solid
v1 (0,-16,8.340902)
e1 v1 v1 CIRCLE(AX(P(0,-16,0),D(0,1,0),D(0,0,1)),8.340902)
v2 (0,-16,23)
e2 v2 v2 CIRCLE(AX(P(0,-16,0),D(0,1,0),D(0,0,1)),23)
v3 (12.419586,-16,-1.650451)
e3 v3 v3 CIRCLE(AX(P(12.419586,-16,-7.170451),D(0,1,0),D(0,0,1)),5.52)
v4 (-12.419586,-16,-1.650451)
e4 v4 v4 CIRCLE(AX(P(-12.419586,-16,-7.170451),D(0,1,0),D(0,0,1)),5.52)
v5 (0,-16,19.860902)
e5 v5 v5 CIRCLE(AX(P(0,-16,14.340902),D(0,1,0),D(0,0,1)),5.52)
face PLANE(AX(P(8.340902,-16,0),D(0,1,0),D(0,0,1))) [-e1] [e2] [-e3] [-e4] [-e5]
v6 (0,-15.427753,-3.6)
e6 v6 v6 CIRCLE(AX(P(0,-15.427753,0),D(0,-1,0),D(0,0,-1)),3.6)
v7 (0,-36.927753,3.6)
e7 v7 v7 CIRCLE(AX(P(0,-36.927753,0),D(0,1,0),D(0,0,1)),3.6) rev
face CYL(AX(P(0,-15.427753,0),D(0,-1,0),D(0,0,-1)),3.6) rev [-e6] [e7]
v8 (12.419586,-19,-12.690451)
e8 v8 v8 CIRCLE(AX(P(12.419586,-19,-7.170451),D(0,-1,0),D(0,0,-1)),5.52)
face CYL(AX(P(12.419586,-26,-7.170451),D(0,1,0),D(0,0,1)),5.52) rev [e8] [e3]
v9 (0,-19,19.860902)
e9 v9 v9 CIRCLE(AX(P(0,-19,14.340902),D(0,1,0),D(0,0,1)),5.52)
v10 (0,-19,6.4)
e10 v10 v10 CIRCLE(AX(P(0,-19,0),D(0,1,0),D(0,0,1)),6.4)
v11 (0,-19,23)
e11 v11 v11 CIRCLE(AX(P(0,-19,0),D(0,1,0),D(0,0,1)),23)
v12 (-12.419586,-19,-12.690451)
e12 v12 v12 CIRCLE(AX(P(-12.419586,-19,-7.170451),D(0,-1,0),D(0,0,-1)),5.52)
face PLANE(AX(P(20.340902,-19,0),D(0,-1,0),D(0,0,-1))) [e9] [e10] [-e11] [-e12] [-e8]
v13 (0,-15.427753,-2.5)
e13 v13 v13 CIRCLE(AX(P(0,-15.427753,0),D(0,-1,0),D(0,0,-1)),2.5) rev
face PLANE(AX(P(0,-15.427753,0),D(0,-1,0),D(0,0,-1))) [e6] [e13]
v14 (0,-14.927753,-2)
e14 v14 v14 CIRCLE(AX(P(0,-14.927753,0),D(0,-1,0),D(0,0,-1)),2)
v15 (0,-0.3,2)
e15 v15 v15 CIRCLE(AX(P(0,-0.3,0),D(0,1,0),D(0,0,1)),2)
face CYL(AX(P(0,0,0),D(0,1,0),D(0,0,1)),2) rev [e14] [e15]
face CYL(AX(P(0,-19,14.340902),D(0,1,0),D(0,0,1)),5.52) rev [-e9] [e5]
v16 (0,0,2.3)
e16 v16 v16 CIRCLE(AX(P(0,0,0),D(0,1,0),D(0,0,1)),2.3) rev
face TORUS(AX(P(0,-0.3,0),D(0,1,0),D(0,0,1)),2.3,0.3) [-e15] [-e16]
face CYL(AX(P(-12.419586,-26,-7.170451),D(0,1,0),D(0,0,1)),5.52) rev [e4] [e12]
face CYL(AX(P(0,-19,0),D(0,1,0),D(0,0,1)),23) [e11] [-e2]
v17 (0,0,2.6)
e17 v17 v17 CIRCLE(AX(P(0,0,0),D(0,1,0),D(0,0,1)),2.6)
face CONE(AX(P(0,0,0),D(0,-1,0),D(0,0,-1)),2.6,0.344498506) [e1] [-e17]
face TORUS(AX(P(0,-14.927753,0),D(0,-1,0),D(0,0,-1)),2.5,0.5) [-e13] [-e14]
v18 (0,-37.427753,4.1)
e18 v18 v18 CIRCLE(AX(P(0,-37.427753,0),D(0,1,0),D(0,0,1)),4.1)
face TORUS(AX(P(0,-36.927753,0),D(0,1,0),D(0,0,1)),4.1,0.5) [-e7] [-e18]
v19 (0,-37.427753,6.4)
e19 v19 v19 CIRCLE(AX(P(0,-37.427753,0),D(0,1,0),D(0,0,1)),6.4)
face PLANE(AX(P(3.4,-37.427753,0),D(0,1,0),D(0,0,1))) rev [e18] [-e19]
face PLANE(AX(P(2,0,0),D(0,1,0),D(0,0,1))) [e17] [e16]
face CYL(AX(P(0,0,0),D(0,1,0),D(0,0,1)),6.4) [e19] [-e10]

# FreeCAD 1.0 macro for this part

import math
import FreeCAD as App
import Part
import Sketcher

V = App.Vector
Q = App.Units.Quantity


def edges_at(feature, points):
    """Names of the edges that pass closest to the given points."""
    edges = feature.Shape.Edges
    near = lambda p: min(range(len(edges)), key=lambda i: edges[i].distToShape(Part.Vertex(*p))[0])
    return sorted({f"Edge{near(p) + 1}" for p in points})


def add_polygon(sketch, points):
    """Adds a closed chain of lines whose ends are joined by coincident constraints."""
    first, n = sketch.GeometryCount, len(points)
    for a, b in zip(points, points[1:] + points[:1]):
        sketch.addGeometry(Part.LineSegment(App.Vector(*a, 0), App.Vector(*b, 0)), False)
    for i in range(n):
        sketch.addConstraint(Sketcher.Constraint("Coincident", first + i, 2, first + (i + 1) % n, 1))

doc = App.newDocument("Part")
body = doc.addObject("PartDesign::Body", "Body")

# Sketch on XY plane
sketch1 = body.newObject("Sketcher::SketchObject", "Sketch")
sketch1.AttachmentSupport = (doc.getObject("XY_Plane"), [""])
sketch1.MapMode = "FlatFace"
add_polygon(sketch1, [(2.6, 0), (2, 0), (2, -16), (3.4, -16), (3.4, -37.4), (6.4, -37.4), (6.4, -19), (20.3, -19), (20.3, -16), (8.3, -16)])  # lines 0-9
sketch1.addConstraint(Sketcher.Constraint("Horizontal", 0))
sketch1.addConstraint(Sketcher.Constraint("Vertical", 1))
sketch1.addConstraint(Sketcher.Constraint("Horizontal", 2))
sketch1.addConstraint(Sketcher.Constraint("Vertical", 3))
sketch1.addConstraint(Sketcher.Constraint("Horizontal", 4))
sketch1.addConstraint(Sketcher.Constraint("Vertical", 5))
sketch1.addConstraint(Sketcher.Constraint("Horizontal", 6))
sketch1.addConstraint(Sketcher.Constraint("Vertical", 7))
sketch1.addConstraint(Sketcher.Constraint("Horizontal", 8))
sketch1.addConstraint(Sketcher.Constraint("PointOnObject", 0, 2, -1))
sketch1.addConstraint(Sketcher.Constraint("Horizontal", 2, 2, 7, 2))
sketch1.addConstraint(Sketcher.Constraint("Equal", 4, 7))
sketch1.addConstraint(Sketcher.Constraint("DistanceX", 4, 1, 4, 2, 3.0))
sketch1.addConstraint(Sketcher.Constraint("DistanceX", 8, 2, 8, 1, 12.0))
sketch1.addConstraint(Sketcher.Constraint("DistanceY", 1, 2, 1, 1, 16.0))
sketch1.addConstraint(Sketcher.Constraint("DistanceX", 0, 2, 0, 1, 0.6))
sketch1.addConstraint(Sketcher.Constraint("DistanceX", 2, 1, 2, 2, 1.4))
sketch1.addConstraint(Sketcher.Constraint("DistanceX", -1, 1, 0, 2, 2.0))
sketch1.addConstraint(Sketcher.Constraint("DistanceX", 6, 1, 6, 2, 13.940902))
sketch1.addConstraint(Sketcher.Constraint("DistanceY", 3, 2, 3, 1, 21.427753))
revolution = body.newObject("PartDesign::Revolution", "Revolution")
revolution.Profile = sketch1
revolution.ReferenceAxis = (sketch1, ["V_Axis"])
revolution.Angle = 360
doc.recompute()

fillet = body.newObject("PartDesign::Fillet", "Fillet")
fillet.Base = (revolution, edges_at(revolution, [(-2, 0, 0)]))
fillet.Radius = 0.3

# Sketch on XZ plane
sketch2 = body.newObject("Sketcher::SketchObject", "Sketch001")
sketch2.AttachmentSupport = (doc.getObject("XZ_Plane"), [""])
sketch2.MapMode = "FlatFace"
sketch2.AttachmentOffset = App.Placement(V(0, 0, 37.427753), App.Rotation())
sketch2.addGeometry(Part.Circle(V(0, 0, 0), V(0, 0, 1), 3.6), False)
sketch2.addConstraint(Sketcher.Constraint("Coincident", 0, 3, -1, 1))
sketch2.addConstraint(Sketcher.Constraint("Diameter", 0, 7.2))
pocket1 = body.newObject("PartDesign::Pocket", "Pocket")
pocket1.Profile = sketch2
pocket1.Type = "TwoLengths"
pocket1.Length = 1
pocket1.Length2 = 22
pocket1.Reversed = True
doc.recompute()

fillet2 = body.newObject("PartDesign::Fillet", "Fillet001")
fillet2.Base = (pocket1, edges_at(pocket1, [(-2, -15.428, 0)]))
fillet2.Radius = 0.5
doc.recompute()

fillet3 = body.newObject("PartDesign::Fillet", "Fillet002")
fillet3.Base = (fillet2, edges_at(fillet2, [(-3.6, -37.428, 0)]))
fillet3.Radius = 0.5

# Sketch on XZ plane
sketch3 = body.newObject("Sketcher::SketchObject", "Sketch002")
sketch3.AttachmentSupport = (doc.getObject("XZ_Plane"), [""])
sketch3.MapMode = "FlatFace"
sketch3.AttachmentOffset = App.Placement(V(0, 0, 16), App.Rotation())
add_polygon(sketch3, [(-3.2, 14), (-3.2, 16), (3.2, 16), (3.2, 14)])  # lines 0-3
sketch3.addConstraint(Sketcher.Constraint("Vertical", 0))
sketch3.addConstraint(Sketcher.Constraint("Horizontal", 1))
sketch3.addConstraint(Sketcher.Constraint("Vertical", 2))
sketch3.addConstraint(Sketcher.Constraint("Horizontal", 3))
sketch3.addConstraint(Sketcher.Constraint("DistanceY", 0, 1, 0, 2, 2.0))
sketch3.addConstraint(Sketcher.Constraint("DistanceX", 1, 1, 1, 2, 6.5))
sketch3.addConstraint(Sketcher.Constraint("DistanceY", -1, 1, 0, 2, 16.0))
sketch3.addConstraint(Sketcher.Constraint("DistanceX", 0, 2, -1, 1, 3.25))

# Sketch on XZ plane
sketch4 = body.newObject("Sketcher::SketchObject", "Sketch003")
sketch4.AttachmentSupport = (doc.getObject("XZ_Plane"), [""])
sketch4.MapMode = "FlatFace"
sketch4.AttachmentOffset = App.Placement(V(0, 0, 19), App.Rotation())
add_polygon(sketch4, [(-4.2, 16), (-4.2, 14), (4.2, 14), (4.2, 16)])  # lines 0-3
sketch4.addConstraint(Sketcher.Constraint("Vertical", 0))
sketch4.addConstraint(Sketcher.Constraint("Horizontal", 1))
sketch4.addConstraint(Sketcher.Constraint("Vertical", 2))
sketch4.addConstraint(Sketcher.Constraint("Horizontal", 3))
sketch4.addConstraint(Sketcher.Constraint("DistanceY", 0, 2, 0, 1, 2.0))
sketch4.addConstraint(Sketcher.Constraint("DistanceX", 1, 1, 1, 2, 8.5))
sketch4.addConstraint(Sketcher.Constraint("DistanceY", -1, 1, 0, 2, 14.0))
sketch4.addConstraint(Sketcher.Constraint("DistanceX", 0, 2, -1, 1, 4.25))

subtractiveloft = body.newObject("PartDesign::SubtractiveLoft", "SubtractiveLoft")
subtractiveloft.Profile = sketch3
subtractiveloft.Sections = [sketch4]

# Sketch on XZ plane
sketch5 = body.newObject("Sketcher::SketchObject", "Sketch004")
sketch5.AttachmentSupport = (doc.getObject("XZ_Plane"), [""])
sketch5.MapMode = "FlatFace"
sketch5.AttachmentOffset = App.Placement(V(0, 0, 19), App.Rotation())
add_polygon(sketch5, [(-4.2, 16.5), (-4.2, 13.5), (4.2, 13.5), (4.2, 16.5)])  # lines 0-3
sketch5.addConstraint(Sketcher.Constraint("Vertical", 0))
sketch5.addConstraint(Sketcher.Constraint("Horizontal", 1))
sketch5.addConstraint(Sketcher.Constraint("Vertical", 2))
sketch5.addConstraint(Sketcher.Constraint("Horizontal", 3))
sketch5.addConstraint(Sketcher.Constraint("DistanceY", 0, 2, 0, 1, 3.0))
sketch5.addConstraint(Sketcher.Constraint("DistanceX", 1, 1, 1, 2, 8.5))
sketch5.addConstraint(Sketcher.Constraint("DistanceY", -1, 1, 0, 2, 13.5))
sketch5.addConstraint(Sketcher.Constraint("DistanceX", 0, 2, -1, 1, 4.25))

# Sketch on XZ plane
sketch6 = body.newObject("Sketcher::SketchObject", "Sketch005")
sketch6.AttachmentSupport = (doc.getObject("XZ_Plane"), [""])
sketch6.MapMode = "FlatFace"
sketch6.AttachmentOffset = App.Placement(V(0, 0, 16), App.Rotation())
add_polygon(sketch6, [(-3.2, 13.5), (-3.2, 16.5), (3.2, 16.5), (3.2, 13.5)])  # lines 0-3
sketch6.addConstraint(Sketcher.Constraint("Vertical", 0))
sketch6.addConstraint(Sketcher.Constraint("Horizontal", 1))
sketch6.addConstraint(Sketcher.Constraint("Vertical", 2))
sketch6.addConstraint(Sketcher.Constraint("Horizontal", 3))
sketch6.addConstraint(Sketcher.Constraint("DistanceY", 0, 1, 0, 2, 3.0))
sketch6.addConstraint(Sketcher.Constraint("DistanceX", 1, 1, 1, 2, 6.5))
sketch6.addConstraint(Sketcher.Constraint("DistanceY", -1, 1, 0, 2, 16.5))
sketch6.addConstraint(Sketcher.Constraint("DistanceX", 0, 2, -1, 1, 3.25))

subtractiveloft2 = body.newObject("PartDesign::SubtractiveLoft", "SubtractiveLoft001")
subtractiveloft2.Profile = sketch5
subtractiveloft2.Sections = [sketch6]

# Sketch on XZ plane
sketch7 = body.newObject("Sketcher::SketchObject", "Sketch006")
sketch7.AttachmentSupport = (doc.getObject("XZ_Plane"), [""])
sketch7.MapMode = "FlatFace"
sketch7.AttachmentOffset = App.Placement(V(0, 0, 16), App.Rotation())
sketch7.addGeometry(Part.Circle(V(0, -14.3, 0), V(0, 0, 1), 5.5), False)
sketch7.addGeometry(Part.Circle(V(12.4, -7.2, 0), V(0, 0, 1), 5.5), False)
sketch7.addGeometry(Part.ArcOfCircle(Part.Circle(V(-12.4, -7.2, 0), V(0, 0, 1), 5.5), math.radians(30), math.radians(210)), False)
sketch7.addGeometry(Part.ArcOfCircle(Part.Circle(V(-12.4, -7.2, 0), V(0, 0, 1), 5.5), math.radians(0), math.radians(30)), False)
sketch7.addGeometry(Part.ArcOfCircle(Part.Circle(V(-12.4, -7.2, 0), V(0, 0, 1), 5.5), math.radians(-150), math.radians(0)), False)
sketch7.addConstraint(Sketcher.Constraint("Tangent", 2, 1, 3, 2))
sketch7.addConstraint(Sketcher.Constraint("Tangent", 3, 1, 4, 2))
sketch7.addConstraint(Sketcher.Constraint("Tangent", 4, 1, 2, 2))
sketch7.addConstraint(Sketcher.Constraint("Equal", 0, 1))
sketch7.addConstraint(Sketcher.Constraint("Equal", 1, 2))
sketch7.addConstraint(Sketcher.Constraint("Symmetric", 1, 3, 2, 3, -2))
sketch7.addConstraint(Sketcher.Constraint("PointOnObject", 0, 3, -2))
sketch7.addConstraint(Sketcher.Constraint("Horizontal", 4, 3, 3, 1))
sketch7.addConstraint(Sketcher.Constraint("Diameter", 0, 11.04))
sketch7.addConstraint(Sketcher.Constraint("DistanceY", 2, 3, 2, 1, 2.76))
sketch7.addConstraint(Sketcher.Constraint("DistanceY", 4, 1, 3, 3, 2.76))
sketch7.addConstraint(Sketcher.Constraint("DistanceY", 1, 3, -1, 1, 7.170451))
sketch7.addConstraint(Sketcher.Constraint("DistanceY", 0, 3, 1, 3, 7.170451))
sketch7.addConstraint(Sketcher.Constraint("DistanceX", 2, 3, 1, 3, 24.839171))
pocket2 = body.newObject("PartDesign::Pocket", "Pocket001")
pocket2.Profile = sketch7
pocket2.Length = 10
pocket2.Reversed = True

# Sketch on XZ plane
sketch8 = body.newObject("Sketcher::SketchObject", "Sketch007")
sketch8.AttachmentSupport = (doc.getObject("XZ_Plane"), [""])
sketch8.MapMode = "FlatFace"
sketch8.AttachmentOffset = App.Placement(V(0, 0, 16), App.Rotation())
sketch8.addGeometry(Part.LineSegment(V(-8, 0, 0), V(-20, 0, 0)), False)
sketch8.addGeometry(Part.ArcOfCircle(Part.Circle(V(0, 0, 0), V(0, 0, 1), 20), math.radians(120), math.radians(180)), False)
sketch8.addGeometry(Part.LineSegment(V(-10, 18, 0), V(-4, 7, 0)), False)
sketch8.addGeometry(Part.ArcOfCircle(Part.Circle(V(0, 0, 0), V(0, 0, 1), 8), math.radians(120), math.radians(180)), False)
sketch8.addGeometry(Part.LineSegment(V(20, 0, 0), V(8, 0, 0)), False)
sketch8.addGeometry(Part.ArcOfCircle(Part.Circle(V(0, 0, 0), V(0, 0, 1), 8), math.radians(0), math.radians(61)), False)
sketch8.addGeometry(Part.LineSegment(V(4, 7, 0), V(10, 18, 0)), False)
sketch8.addGeometry(Part.ArcOfCircle(Part.Circle(V(0, 0, 0), V(0, 0, 1), 20), math.radians(0), math.radians(61)), False)
sketch8.addConstraint(Sketcher.Constraint("Coincident", 0, 2, 1, 2))
sketch8.addConstraint(Sketcher.Constraint("Coincident", 1, 1, 2, 1))
sketch8.addConstraint(Sketcher.Constraint("Coincident", 2, 2, 3, 1))
sketch8.addConstraint(Sketcher.Constraint("Coincident", 3, 2, 0, 1))
sketch8.addConstraint(Sketcher.Constraint("Coincident", 4, 2, 5, 1))
sketch8.addConstraint(Sketcher.Constraint("Coincident", 5, 2, 6, 1))
sketch8.addConstraint(Sketcher.Constraint("Coincident", 6, 2, 7, 2))
sketch8.addConstraint(Sketcher.Constraint("Coincident", 7, 1, 4, 1))
sketch8.addConstraint(Sketcher.Constraint("Horizontal", 0))
sketch8.addConstraint(Sketcher.Constraint("Horizontal", 4))
sketch8.addConstraint(Sketcher.Constraint("Coincident", 1, 3, -1, 1))
sketch8.addConstraint(Sketcher.Constraint("Coincident", 3, 3, -1, 1))
sketch8.addConstraint(Sketcher.Constraint("Coincident", 5, 3, -1, 1))
sketch8.addConstraint(Sketcher.Constraint("Coincident", 7, 3, -1, 1))
sketch8.addConstraint(Sketcher.Constraint("Equal", 3, 5))
sketch8.addConstraint(Sketcher.Constraint("Equal", 1, 7))
sketch8.addConstraint(Sketcher.Constraint("PointOnObject", 0, 2, -1))
sketch8.addConstraint(Sketcher.Constraint("PointOnObject", 4, 2, -1))
sketch8.addConstraint(Sketcher.Constraint("DistanceX", 0, 2, 0, 1, 12.0))
sketch8.addConstraint(Sketcher.Constraint("Angle", 2, Q("-60 deg")))
sketch8.addConstraint(Sketcher.Constraint("Radius", 1, 20.340902))
sketch8.addConstraint(Sketcher.Constraint("DistanceX", 1, 1, -1, 1, 10.170451))
sketch8.addConstraint(Sketcher.Constraint("DistanceX", -1, 1, 5, 2, 4.072822))
sketch8.addConstraint(Sketcher.Constraint("DistanceY", -1, 1, 6, 2, 17.751069))
pocket3 = body.newObject("PartDesign::Pocket", "Pocket002")
pocket3.Profile = sketch8
pocket3.Length = 10
pocket3.Reversed = True

# Sketch on XZ plane
sketch9 = body.newObject("Sketcher::SketchObject", "Sketch008")
sketch9.AttachmentSupport = (doc.getObject("XZ_Plane"), [""])
sketch9.MapMode = "FlatFace"
sketch9.AttachmentOffset = App.Placement(V(0, 0, 16), App.Rotation())
sketch9.addGeometry(Part.ArcOfCircle(Part.Circle(V(0, 0, 0), V(0, 0, 1), 20.3), math.radians(-90), math.radians(0)), False)
sketch9.addGeometry(Part.LineSegment(V(20.3, 0, 0), V(23, 0, 0)), False)
sketch9.addGeometry(Part.ArcOfCircle(Part.Circle(V(0, 0, 0), V(0, 0, 1), 23), math.radians(-90), math.radians(0)), False)
sketch9.addGeometry(Part.ArcOfCircle(Part.Circle(V(0, 0, 0), V(0, 0, 1), 23), math.radians(-180), math.radians(-90)), False)
sketch9.addGeometry(Part.LineSegment(V(-23, 0, 0), V(-20.3, 0, 0)), False)
sketch9.addGeometry(Part.ArcOfCircle(Part.Circle(V(0, 0, 0), V(0, 0, 1), 20.3), math.radians(180), math.radians(270)), False)
sketch9.addConstraint(Sketcher.Constraint("Coincident", 0, 2, 1, 1))
sketch9.addConstraint(Sketcher.Constraint("Coincident", 1, 2, 2, 2))
sketch9.addConstraint(Sketcher.Constraint("Tangent", 2, 1, 3, 2))
sketch9.addConstraint(Sketcher.Constraint("Coincident", 3, 1, 4, 1))
sketch9.addConstraint(Sketcher.Constraint("Coincident", 4, 2, 5, 1))
sketch9.addConstraint(Sketcher.Constraint("Tangent", 5, 2, 0, 1))
sketch9.addConstraint(Sketcher.Constraint("Horizontal", 1))
sketch9.addConstraint(Sketcher.Constraint("Horizontal", 4))
sketch9.addConstraint(Sketcher.Constraint("Coincident", 0, 3, -1, 1))
sketch9.addConstraint(Sketcher.Constraint("Coincident", 2, 3, -1, 1))
sketch9.addConstraint(Sketcher.Constraint("Equal", 2, 3))
sketch9.addConstraint(Sketcher.Constraint("Equal", 0, 5))
sketch9.addConstraint(Sketcher.Constraint("PointOnObject", 0, 2, -1))
sketch9.addConstraint(Sketcher.Constraint("PointOnObject", 2, 1, -2))
sketch9.addConstraint(Sketcher.Constraint("PointOnObject", 3, 1, -1))
sketch9.addConstraint(Sketcher.Constraint("PointOnObject", 5, 2, -2))
sketch9.addConstraint(Sketcher.Constraint("Radius", 2, 23.0))
sketch9.addConstraint(Sketcher.Constraint("Radius", 0, 20.340902))
pad1 = body.newObject("PartDesign::Pad", "Pad")
pad1.Profile = sketch9
pad1.Length = 3

# Sketch on XZ plane
sketch10 = body.newObject("Sketcher::SketchObject", "Sketch009")
sketch10.AttachmentSupport = (doc.getObject("XZ_Plane"), [""])
sketch10.MapMode = "FlatFace"
sketch10.AttachmentOffset = App.Placement(V(0, 0, 16), App.Rotation())
sketch10.addGeometry(Part.Circle(V(0, 0, 0), V(0, 0, 1), 23), False)
sketch10.addGeometry(Part.Circle(V(0, 14, 0), V(0, 0, 1), 6), False)
sketch10.addGeometry(Part.Circle(V(-12, -7, 0), V(0, 0, 1), 6), False)
sketch10.addGeometry(Part.Circle(V(0, 0, 0), V(0, 0, 1), 8), False)
sketch10.addGeometry(Part.Circle(V(12, -7, 0), V(0, 0, 1), 6), False)
sketch10.addConstraint(Sketcher.Constraint("Coincident", 0, 3, -1, 1))
sketch10.addConstraint(Sketcher.Constraint("Coincident", 3, 3, -1, 1))
sketch10.addConstraint(Sketcher.Constraint("Equal", 1, 2))
sketch10.addConstraint(Sketcher.Constraint("Equal", 2, 4))
sketch10.addConstraint(Sketcher.Constraint("Symmetric", 2, 3, 4, 3, -2))
sketch10.addConstraint(Sketcher.Constraint("PointOnObject", 1, 3, -2))
sketch10.addConstraint(Sketcher.Constraint("Diameter", 0, 46.0))
sketch10.addConstraint(Sketcher.Constraint("Diameter", 1, 11.2))
sketch10.addConstraint(Sketcher.Constraint("Diameter", 3, 16.681804))
sketch10.addConstraint(Sketcher.Constraint("DistanceY", 2, 3, -1, 1, 7.170451))
sketch10.addConstraint(Sketcher.Constraint("DistanceX", 2, 3, 4, 3, 24.839171))
sketch10.addConstraint(Sketcher.Constraint("DistanceY", -1, 1, 1, 3, 14.340902))
pad2 = body.newObject("PartDesign::Pad", "Pad001")
pad2.Profile = sketch10
pad2.Length = 3

# Sketch on XZ plane
sketch11 = body.newObject("Sketcher::SketchObject", "Sketch010")
sketch11.AttachmentSupport = (doc.getObject("XZ_Plane"), [""])
sketch11.MapMode = "FlatFace"
sketch11.AttachmentOffset = App.Placement(V(0, 0, 16), App.Rotation())
sketch11.addGeometry(Part.Circle(V(0, 14, 0), V(0, 0, 1), 6), False)
sketch11.addConstraint(Sketcher.Constraint("PointOnObject", 0, 3, -2))
sketch11.addConstraint(Sketcher.Constraint("Diameter", 0, 11.04))
sketch11.addConstraint(Sketcher.Constraint("DistanceY", -1, 1, 0, 3, 14.340902))
pocket4 = body.newObject("PartDesign::Pocket", "Pocket003")
pocket4.Profile = sketch11
pocket4.Length = 3
pocket4.Reversed = True

doc.recompute()
